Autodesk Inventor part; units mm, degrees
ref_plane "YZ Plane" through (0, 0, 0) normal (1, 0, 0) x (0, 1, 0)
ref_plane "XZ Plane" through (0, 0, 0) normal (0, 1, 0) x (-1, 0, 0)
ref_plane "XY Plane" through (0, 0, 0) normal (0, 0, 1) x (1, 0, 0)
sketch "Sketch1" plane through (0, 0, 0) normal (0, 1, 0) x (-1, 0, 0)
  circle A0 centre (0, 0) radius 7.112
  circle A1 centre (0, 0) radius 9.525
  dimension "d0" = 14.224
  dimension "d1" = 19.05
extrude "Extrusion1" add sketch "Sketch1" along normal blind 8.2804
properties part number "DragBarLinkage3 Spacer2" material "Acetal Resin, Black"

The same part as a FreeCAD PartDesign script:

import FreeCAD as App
import Part
import Sketcher

V = App.Vector
Q = App.Units.Quantity

doc = App.newDocument("Part")
body = doc.addObject("PartDesign::Body", "Body")

# Sketch on XZ plane
sketch1 = body.newObject("Sketcher::SketchObject", "Sketch")
sketch1.AttachmentSupport = (doc.getObject("XZ_Plane"), [""])
sketch1.MapMode = "FlatFace"
sketch1.addGeometry([
    Part.Circle(V(0, 0, 0), V(0, 0, 1), 10),
    Part.Circle(V(0, 0, 0), V(0, 0, 1), 7),
], False)
sketch1.addConstraint([
    Sketcher.Constraint("Coincident", 0, 3, -1, 1),
    Sketcher.Constraint("Coincident", 1, 3, -1, 1),
    Sketcher.Constraint("Diameter", 0, Q("0.75 in")),
    Sketcher.Constraint("Diameter", 1, Q("0.56 in")),
])
pad1 = body.newObject("PartDesign::Pad", "Pad")
pad1.Profile = sketch1
pad1.Length = Q("0.326 in")
pad1.Reversed = True

doc.recompute()
